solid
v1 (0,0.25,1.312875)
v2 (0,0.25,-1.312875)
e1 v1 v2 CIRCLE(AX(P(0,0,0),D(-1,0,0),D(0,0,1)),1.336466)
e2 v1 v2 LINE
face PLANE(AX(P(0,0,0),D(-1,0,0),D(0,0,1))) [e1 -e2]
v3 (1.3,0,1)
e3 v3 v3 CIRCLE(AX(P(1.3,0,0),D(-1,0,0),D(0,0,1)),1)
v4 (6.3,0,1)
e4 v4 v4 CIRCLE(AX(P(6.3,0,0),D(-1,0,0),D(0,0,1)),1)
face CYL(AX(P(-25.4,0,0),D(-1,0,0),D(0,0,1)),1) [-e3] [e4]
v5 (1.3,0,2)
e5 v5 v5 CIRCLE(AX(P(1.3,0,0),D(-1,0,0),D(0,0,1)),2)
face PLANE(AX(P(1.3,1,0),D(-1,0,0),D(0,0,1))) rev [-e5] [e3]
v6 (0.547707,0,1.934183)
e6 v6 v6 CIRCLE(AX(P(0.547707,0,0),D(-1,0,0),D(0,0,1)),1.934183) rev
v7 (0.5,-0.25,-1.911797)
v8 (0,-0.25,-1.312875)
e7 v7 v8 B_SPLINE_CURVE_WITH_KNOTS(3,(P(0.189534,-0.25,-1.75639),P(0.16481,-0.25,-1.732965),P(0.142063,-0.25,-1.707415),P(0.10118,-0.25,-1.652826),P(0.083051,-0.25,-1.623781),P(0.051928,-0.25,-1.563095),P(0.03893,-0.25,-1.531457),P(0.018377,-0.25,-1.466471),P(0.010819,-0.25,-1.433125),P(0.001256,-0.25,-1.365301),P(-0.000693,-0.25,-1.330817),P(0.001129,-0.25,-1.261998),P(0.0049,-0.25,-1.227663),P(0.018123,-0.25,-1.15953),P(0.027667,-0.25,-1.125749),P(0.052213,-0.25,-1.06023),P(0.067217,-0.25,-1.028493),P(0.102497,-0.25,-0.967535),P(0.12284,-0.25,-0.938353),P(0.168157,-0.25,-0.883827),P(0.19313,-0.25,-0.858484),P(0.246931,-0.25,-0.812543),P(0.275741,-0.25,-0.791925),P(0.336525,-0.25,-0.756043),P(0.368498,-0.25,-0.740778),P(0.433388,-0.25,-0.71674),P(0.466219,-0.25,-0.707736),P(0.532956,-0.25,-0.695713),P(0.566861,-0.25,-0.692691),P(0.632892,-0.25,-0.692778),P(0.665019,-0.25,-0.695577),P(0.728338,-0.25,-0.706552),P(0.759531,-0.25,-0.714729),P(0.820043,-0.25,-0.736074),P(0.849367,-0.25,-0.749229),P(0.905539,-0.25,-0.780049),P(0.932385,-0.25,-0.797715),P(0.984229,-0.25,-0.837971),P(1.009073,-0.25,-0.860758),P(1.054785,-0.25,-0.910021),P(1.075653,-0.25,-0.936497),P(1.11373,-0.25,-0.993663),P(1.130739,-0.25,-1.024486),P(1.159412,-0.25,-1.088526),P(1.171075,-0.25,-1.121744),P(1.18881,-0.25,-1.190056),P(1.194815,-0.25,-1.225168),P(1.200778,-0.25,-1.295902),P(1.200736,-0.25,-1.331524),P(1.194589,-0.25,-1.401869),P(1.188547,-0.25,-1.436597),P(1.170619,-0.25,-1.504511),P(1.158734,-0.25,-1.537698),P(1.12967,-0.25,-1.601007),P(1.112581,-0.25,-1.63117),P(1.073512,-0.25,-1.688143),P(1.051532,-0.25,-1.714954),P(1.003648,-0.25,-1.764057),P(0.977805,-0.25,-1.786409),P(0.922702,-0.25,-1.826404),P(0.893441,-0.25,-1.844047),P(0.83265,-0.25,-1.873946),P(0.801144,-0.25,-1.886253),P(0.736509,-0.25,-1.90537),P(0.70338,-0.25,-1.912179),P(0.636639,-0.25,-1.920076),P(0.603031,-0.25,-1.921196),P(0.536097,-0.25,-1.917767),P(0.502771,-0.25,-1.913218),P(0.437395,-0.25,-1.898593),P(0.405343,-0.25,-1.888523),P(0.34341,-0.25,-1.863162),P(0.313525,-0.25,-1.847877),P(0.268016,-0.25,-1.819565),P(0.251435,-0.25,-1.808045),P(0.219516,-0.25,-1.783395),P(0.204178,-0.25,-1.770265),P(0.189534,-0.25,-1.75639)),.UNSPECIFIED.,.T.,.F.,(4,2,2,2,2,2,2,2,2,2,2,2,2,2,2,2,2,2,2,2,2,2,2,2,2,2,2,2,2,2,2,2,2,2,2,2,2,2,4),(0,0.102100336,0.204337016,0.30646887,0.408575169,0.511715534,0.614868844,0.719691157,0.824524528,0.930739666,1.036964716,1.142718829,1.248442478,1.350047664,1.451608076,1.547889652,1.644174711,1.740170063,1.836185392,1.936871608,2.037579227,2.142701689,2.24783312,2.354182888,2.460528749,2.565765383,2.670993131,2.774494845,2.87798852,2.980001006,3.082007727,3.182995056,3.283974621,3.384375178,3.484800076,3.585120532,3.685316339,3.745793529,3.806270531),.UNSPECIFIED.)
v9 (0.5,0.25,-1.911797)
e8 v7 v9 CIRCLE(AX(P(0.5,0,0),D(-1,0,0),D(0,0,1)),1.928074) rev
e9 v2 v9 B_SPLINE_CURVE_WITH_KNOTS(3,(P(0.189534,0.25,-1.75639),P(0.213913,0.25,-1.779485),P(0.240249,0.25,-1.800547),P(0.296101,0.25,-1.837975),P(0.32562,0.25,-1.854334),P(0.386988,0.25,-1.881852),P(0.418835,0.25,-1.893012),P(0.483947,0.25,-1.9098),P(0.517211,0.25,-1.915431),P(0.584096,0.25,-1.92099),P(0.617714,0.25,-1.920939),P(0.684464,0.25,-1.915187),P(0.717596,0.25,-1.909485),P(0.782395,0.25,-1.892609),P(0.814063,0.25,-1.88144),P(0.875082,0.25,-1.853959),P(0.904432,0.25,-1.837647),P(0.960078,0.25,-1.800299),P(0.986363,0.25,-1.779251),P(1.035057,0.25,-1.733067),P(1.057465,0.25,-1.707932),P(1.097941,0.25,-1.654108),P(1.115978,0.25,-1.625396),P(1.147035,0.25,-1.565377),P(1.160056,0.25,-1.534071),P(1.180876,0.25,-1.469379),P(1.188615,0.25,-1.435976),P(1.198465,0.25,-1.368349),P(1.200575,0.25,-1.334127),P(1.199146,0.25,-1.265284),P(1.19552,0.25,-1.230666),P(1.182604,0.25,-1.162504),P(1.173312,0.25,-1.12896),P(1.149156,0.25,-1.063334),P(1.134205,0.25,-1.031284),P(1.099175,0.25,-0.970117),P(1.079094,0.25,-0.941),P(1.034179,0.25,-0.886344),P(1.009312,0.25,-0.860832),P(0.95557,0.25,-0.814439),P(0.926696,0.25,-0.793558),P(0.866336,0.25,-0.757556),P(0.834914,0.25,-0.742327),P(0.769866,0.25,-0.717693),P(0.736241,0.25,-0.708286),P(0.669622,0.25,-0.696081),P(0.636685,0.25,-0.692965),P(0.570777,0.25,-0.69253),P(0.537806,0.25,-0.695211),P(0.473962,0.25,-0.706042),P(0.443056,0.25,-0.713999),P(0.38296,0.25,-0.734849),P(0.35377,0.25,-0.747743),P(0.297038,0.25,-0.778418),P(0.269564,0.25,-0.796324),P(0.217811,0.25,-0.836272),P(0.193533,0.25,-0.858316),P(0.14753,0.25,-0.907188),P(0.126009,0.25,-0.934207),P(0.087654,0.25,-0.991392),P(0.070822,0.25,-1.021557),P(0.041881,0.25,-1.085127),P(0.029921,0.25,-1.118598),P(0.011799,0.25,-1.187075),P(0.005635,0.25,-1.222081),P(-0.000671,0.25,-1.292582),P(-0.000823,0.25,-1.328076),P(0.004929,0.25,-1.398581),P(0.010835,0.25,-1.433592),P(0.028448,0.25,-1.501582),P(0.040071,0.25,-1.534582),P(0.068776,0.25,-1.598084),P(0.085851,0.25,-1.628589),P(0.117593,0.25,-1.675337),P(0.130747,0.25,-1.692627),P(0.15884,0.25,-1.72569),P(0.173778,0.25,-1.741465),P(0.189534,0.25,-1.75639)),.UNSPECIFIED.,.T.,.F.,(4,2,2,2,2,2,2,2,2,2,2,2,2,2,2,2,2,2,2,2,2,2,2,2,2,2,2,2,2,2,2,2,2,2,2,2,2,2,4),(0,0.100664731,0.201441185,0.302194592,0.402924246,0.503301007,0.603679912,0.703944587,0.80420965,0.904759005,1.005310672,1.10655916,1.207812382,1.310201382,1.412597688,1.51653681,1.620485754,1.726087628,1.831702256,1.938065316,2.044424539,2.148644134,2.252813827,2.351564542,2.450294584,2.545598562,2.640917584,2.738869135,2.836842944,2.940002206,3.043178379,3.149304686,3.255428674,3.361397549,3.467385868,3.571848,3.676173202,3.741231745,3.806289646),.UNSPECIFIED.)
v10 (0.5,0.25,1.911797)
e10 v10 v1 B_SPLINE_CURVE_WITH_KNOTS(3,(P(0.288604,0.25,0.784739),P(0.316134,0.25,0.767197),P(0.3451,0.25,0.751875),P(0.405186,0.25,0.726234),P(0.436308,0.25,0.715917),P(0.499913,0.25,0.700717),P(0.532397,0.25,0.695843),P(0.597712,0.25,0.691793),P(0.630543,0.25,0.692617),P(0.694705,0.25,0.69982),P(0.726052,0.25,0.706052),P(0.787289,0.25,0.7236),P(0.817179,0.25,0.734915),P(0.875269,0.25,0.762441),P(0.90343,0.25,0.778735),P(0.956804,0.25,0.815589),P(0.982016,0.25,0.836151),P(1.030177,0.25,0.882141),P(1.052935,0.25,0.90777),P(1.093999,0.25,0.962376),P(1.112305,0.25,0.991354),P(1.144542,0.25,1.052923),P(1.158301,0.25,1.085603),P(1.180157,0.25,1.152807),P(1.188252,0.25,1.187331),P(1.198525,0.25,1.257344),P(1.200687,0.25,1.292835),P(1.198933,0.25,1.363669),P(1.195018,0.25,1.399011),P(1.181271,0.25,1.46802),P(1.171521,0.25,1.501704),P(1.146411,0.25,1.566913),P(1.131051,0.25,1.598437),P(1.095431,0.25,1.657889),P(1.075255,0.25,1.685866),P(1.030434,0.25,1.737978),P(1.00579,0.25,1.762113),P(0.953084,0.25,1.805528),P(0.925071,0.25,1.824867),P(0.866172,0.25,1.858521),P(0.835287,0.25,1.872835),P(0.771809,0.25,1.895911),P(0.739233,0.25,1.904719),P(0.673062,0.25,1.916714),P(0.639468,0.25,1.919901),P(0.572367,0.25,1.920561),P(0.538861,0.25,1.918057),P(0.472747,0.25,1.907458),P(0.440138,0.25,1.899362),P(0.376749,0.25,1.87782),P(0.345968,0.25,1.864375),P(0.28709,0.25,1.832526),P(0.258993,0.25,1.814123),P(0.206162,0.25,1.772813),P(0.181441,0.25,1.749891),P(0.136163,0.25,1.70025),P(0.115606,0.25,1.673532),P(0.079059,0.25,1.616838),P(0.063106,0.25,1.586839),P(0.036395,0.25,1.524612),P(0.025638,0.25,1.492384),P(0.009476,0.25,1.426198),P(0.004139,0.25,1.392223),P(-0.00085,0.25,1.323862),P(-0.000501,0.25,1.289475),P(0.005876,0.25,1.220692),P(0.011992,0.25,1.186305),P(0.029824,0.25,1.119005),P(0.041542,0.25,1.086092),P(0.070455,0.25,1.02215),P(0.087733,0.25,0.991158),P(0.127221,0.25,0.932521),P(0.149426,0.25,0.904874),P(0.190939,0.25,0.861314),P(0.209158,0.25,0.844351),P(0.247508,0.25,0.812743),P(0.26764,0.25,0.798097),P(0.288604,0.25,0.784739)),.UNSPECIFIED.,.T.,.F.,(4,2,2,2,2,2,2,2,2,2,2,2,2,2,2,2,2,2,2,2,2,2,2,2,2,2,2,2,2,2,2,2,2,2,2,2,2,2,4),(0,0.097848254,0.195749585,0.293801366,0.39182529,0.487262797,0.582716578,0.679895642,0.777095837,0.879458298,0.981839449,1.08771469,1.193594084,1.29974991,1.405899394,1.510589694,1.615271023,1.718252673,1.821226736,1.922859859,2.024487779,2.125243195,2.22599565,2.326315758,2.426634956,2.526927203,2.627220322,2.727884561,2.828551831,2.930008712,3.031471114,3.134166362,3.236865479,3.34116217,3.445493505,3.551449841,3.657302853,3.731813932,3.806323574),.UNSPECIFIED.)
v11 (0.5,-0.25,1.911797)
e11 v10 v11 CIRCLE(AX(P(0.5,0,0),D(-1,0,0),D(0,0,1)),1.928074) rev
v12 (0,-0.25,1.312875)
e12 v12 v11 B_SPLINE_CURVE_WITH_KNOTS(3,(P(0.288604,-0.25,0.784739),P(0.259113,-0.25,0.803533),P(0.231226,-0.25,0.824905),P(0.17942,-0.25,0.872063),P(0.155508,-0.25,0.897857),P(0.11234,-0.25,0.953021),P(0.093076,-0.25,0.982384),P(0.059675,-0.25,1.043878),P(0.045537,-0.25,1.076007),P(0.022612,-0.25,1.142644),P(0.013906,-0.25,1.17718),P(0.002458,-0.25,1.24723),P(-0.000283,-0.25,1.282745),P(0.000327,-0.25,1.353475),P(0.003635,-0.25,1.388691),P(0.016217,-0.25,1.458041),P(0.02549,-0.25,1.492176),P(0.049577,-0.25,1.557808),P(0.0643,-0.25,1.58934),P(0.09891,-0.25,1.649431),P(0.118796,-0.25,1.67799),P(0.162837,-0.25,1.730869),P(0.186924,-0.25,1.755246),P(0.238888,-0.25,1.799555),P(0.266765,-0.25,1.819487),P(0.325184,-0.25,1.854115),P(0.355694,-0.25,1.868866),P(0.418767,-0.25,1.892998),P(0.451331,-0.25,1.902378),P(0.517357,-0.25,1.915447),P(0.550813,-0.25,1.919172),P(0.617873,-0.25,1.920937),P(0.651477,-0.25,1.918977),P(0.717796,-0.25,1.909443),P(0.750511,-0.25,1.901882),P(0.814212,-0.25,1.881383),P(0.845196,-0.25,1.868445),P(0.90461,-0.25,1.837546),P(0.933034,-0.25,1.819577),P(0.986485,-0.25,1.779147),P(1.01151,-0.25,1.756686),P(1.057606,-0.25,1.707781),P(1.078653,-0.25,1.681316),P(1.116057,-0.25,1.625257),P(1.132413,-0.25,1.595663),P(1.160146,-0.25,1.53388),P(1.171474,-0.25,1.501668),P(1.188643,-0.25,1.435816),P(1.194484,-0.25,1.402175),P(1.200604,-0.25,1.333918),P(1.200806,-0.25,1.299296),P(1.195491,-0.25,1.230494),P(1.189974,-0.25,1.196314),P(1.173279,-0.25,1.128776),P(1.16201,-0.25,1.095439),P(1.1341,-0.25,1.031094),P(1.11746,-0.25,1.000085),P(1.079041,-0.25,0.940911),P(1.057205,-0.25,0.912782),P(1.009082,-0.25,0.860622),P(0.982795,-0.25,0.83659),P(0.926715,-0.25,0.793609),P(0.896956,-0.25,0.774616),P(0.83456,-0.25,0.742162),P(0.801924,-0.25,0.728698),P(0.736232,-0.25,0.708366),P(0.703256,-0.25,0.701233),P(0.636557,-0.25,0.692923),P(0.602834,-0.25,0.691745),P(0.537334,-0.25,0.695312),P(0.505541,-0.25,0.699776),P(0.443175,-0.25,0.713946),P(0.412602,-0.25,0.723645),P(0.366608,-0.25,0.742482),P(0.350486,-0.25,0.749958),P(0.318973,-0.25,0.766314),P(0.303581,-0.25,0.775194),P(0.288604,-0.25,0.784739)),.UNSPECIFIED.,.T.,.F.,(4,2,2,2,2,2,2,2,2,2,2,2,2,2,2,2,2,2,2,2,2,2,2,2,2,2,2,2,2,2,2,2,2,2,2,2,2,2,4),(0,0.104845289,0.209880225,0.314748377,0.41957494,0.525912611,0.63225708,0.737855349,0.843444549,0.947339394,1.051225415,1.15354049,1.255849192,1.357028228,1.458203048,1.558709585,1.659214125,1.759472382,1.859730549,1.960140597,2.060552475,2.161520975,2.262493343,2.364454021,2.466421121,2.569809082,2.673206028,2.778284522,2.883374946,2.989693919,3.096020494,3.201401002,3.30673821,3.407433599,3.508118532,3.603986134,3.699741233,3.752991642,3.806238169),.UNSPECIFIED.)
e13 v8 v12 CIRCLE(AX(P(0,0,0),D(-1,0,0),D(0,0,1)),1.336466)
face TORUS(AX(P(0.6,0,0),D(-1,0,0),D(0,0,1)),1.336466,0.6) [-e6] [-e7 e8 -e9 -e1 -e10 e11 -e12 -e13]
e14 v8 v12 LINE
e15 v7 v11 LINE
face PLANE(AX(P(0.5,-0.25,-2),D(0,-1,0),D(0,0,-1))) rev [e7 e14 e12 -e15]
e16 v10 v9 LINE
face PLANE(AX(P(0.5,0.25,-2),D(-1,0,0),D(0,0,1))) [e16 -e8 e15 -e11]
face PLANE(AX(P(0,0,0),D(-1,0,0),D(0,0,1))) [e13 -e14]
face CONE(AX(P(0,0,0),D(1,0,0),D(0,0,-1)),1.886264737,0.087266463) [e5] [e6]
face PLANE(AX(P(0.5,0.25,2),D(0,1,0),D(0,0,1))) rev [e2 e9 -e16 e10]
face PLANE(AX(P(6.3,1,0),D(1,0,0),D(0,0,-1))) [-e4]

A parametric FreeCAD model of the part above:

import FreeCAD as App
import Part
import Sketcher

V = App.Vector
Q = App.Units.Quantity


def edges_at(feature, points):
    """Names of the edges that pass closest to the given points."""
    edges = feature.Shape.Edges
    near = lambda p: min(range(len(edges)), key=lambda i: edges[i].distToShape(Part.Vertex(*p))[0])
    return sorted({f"Edge{near(p) + 1}" for p in points})

doc = App.newDocument("Part")
body = doc.addObject("PartDesign::Body", "Body")

# Sketch on XY plane
sketch1 = body.newObject("Sketcher::SketchObject", "Sketch")
sketch1.AttachmentSupport = (doc.getObject("XY_Plane"), [""])
sketch1.MapMode = "FlatFace"
sketch1.addGeometry(Part.LineSegment(V(1.3, 1, 0), V(1.3, 2, 0)), False)
sketch1.addGeometry(Part.LineSegment(V(1.3, 2, 0), V(0, 1.9, 0)), False)
sketch1.addGeometry(Part.LineSegment(V(0, 1.9, 0), V(0, 0, 0)), False)
sketch1.addGeometry(Part.LineSegment(V(0, 0, 0), V(6.3, 0, 0)), False)
sketch1.addGeometry(Part.LineSegment(V(6.3, 0, 0), V(6.3, 1, 0)), False)
sketch1.addGeometry(Part.LineSegment(V(6.3, 1, 0), V(1.3, 1, 0)), False)
sketch1.addConstraint(Sketcher.Constraint("Coincident", 0, 2, 1, 1))
sketch1.addConstraint(Sketcher.Constraint("Coincident", 1, 2, 2, 1))
sketch1.addConstraint(Sketcher.Constraint("Coincident", 2, 2, 3, 1))
sketch1.addConstraint(Sketcher.Constraint("Coincident", 3, 2, 4, 1))
sketch1.addConstraint(Sketcher.Constraint("Coincident", 4, 2, 5, 1))
sketch1.addConstraint(Sketcher.Constraint("Coincident", 5, 2, 0, 1))
sketch1.addConstraint(Sketcher.Constraint("Vertical", 0))
sketch1.addConstraint(Sketcher.Constraint("Vertical", 2))
sketch1.addConstraint(Sketcher.Constraint("Horizontal", 3))
sketch1.addConstraint(Sketcher.Constraint("Vertical", 4))
sketch1.addConstraint(Sketcher.Constraint("Horizontal", 5))
sketch1.addConstraint(Sketcher.Constraint("Coincident", 2, 2, -1, 1))
sketch1.addConstraint(Sketcher.Constraint("Equal", 0, 4))
sketch1.addConstraint(Sketcher.Constraint("DistanceX", 5, 2, 5, 1, 5.0))
sketch1.addConstraint(Sketcher.Constraint("DistanceY", 0, 1, 0, 2, 1.0))
sketch1.addConstraint(Sketcher.Constraint("Angle", 1, Q("-175 deg")))
sketch1.addConstraint(Sketcher.Constraint("DistanceX", 3, 1, 3, 2, 6.3))
revolution = body.newObject("PartDesign::Revolution", "Revolution")
revolution.Profile = sketch1
revolution.ReferenceAxis = (sketch1, ["H_Axis"])
revolution.Angle = 360
doc.recompute()

fillet = body.newObject("PartDesign::Fillet", "Fillet")
fillet.Base = (revolution, edges_at(revolution, [(0, 0, -1.886)]))
fillet.Radius = 0.6

# Sketch on YZ plane
sketch2 = body.newObject("Sketcher::SketchObject", "Sketch001")
sketch2.AttachmentSupport = (doc.getObject("YZ_Plane"), [""])
sketch2.MapMode = "FlatFace"
sketch2.addGeometry(Part.LineSegment(V(0.2, 2, 0), V(-0.2, 2, 0)), False)
sketch2.addGeometry(Part.LineSegment(V(-0.2, 2, 0), V(-0.2, -2, 0)), False)
sketch2.addGeometry(Part.LineSegment(V(-0.2, -2, 0), V(0.2, -2, 0)), False)
sketch2.addGeometry(Part.LineSegment(V(0.2, -2, 0), V(0.2, 2, 0)), False)
sketch2.addConstraint(Sketcher.Constraint("Coincident", 0, 2, 1, 1))
sketch2.addConstraint(Sketcher.Constraint("Coincident", 1, 2, 2, 1))
sketch2.addConstraint(Sketcher.Constraint("Coincident", 2, 2, 3, 1))
sketch2.addConstraint(Sketcher.Constraint("Coincident", 3, 2, 0, 1))
sketch2.addConstraint(Sketcher.Constraint("Horizontal", 0))
sketch2.addConstraint(Sketcher.Constraint("Vertical", 1))
sketch2.addConstraint(Sketcher.Constraint("Horizontal", 2))
sketch2.addConstraint(Sketcher.Constraint("Vertical", 3))
sketch2.addConstraint(Sketcher.Constraint("Symmetric", 0, 2, 2, 2, -1, 1))
sketch2.addConstraint(Sketcher.Constraint("DistanceY", 1, 2, 1, 1, 4.0))
sketch2.addConstraint(Sketcher.Constraint("DistanceX", 0, 2, 0, 1, 0.5))
pocket1 = body.newObject("PartDesign::Pocket", "Pocket")
pocket1.Profile = sketch2
pocket1.Length = 0.5
pocket1.Reversed = True

doc.recompute()
